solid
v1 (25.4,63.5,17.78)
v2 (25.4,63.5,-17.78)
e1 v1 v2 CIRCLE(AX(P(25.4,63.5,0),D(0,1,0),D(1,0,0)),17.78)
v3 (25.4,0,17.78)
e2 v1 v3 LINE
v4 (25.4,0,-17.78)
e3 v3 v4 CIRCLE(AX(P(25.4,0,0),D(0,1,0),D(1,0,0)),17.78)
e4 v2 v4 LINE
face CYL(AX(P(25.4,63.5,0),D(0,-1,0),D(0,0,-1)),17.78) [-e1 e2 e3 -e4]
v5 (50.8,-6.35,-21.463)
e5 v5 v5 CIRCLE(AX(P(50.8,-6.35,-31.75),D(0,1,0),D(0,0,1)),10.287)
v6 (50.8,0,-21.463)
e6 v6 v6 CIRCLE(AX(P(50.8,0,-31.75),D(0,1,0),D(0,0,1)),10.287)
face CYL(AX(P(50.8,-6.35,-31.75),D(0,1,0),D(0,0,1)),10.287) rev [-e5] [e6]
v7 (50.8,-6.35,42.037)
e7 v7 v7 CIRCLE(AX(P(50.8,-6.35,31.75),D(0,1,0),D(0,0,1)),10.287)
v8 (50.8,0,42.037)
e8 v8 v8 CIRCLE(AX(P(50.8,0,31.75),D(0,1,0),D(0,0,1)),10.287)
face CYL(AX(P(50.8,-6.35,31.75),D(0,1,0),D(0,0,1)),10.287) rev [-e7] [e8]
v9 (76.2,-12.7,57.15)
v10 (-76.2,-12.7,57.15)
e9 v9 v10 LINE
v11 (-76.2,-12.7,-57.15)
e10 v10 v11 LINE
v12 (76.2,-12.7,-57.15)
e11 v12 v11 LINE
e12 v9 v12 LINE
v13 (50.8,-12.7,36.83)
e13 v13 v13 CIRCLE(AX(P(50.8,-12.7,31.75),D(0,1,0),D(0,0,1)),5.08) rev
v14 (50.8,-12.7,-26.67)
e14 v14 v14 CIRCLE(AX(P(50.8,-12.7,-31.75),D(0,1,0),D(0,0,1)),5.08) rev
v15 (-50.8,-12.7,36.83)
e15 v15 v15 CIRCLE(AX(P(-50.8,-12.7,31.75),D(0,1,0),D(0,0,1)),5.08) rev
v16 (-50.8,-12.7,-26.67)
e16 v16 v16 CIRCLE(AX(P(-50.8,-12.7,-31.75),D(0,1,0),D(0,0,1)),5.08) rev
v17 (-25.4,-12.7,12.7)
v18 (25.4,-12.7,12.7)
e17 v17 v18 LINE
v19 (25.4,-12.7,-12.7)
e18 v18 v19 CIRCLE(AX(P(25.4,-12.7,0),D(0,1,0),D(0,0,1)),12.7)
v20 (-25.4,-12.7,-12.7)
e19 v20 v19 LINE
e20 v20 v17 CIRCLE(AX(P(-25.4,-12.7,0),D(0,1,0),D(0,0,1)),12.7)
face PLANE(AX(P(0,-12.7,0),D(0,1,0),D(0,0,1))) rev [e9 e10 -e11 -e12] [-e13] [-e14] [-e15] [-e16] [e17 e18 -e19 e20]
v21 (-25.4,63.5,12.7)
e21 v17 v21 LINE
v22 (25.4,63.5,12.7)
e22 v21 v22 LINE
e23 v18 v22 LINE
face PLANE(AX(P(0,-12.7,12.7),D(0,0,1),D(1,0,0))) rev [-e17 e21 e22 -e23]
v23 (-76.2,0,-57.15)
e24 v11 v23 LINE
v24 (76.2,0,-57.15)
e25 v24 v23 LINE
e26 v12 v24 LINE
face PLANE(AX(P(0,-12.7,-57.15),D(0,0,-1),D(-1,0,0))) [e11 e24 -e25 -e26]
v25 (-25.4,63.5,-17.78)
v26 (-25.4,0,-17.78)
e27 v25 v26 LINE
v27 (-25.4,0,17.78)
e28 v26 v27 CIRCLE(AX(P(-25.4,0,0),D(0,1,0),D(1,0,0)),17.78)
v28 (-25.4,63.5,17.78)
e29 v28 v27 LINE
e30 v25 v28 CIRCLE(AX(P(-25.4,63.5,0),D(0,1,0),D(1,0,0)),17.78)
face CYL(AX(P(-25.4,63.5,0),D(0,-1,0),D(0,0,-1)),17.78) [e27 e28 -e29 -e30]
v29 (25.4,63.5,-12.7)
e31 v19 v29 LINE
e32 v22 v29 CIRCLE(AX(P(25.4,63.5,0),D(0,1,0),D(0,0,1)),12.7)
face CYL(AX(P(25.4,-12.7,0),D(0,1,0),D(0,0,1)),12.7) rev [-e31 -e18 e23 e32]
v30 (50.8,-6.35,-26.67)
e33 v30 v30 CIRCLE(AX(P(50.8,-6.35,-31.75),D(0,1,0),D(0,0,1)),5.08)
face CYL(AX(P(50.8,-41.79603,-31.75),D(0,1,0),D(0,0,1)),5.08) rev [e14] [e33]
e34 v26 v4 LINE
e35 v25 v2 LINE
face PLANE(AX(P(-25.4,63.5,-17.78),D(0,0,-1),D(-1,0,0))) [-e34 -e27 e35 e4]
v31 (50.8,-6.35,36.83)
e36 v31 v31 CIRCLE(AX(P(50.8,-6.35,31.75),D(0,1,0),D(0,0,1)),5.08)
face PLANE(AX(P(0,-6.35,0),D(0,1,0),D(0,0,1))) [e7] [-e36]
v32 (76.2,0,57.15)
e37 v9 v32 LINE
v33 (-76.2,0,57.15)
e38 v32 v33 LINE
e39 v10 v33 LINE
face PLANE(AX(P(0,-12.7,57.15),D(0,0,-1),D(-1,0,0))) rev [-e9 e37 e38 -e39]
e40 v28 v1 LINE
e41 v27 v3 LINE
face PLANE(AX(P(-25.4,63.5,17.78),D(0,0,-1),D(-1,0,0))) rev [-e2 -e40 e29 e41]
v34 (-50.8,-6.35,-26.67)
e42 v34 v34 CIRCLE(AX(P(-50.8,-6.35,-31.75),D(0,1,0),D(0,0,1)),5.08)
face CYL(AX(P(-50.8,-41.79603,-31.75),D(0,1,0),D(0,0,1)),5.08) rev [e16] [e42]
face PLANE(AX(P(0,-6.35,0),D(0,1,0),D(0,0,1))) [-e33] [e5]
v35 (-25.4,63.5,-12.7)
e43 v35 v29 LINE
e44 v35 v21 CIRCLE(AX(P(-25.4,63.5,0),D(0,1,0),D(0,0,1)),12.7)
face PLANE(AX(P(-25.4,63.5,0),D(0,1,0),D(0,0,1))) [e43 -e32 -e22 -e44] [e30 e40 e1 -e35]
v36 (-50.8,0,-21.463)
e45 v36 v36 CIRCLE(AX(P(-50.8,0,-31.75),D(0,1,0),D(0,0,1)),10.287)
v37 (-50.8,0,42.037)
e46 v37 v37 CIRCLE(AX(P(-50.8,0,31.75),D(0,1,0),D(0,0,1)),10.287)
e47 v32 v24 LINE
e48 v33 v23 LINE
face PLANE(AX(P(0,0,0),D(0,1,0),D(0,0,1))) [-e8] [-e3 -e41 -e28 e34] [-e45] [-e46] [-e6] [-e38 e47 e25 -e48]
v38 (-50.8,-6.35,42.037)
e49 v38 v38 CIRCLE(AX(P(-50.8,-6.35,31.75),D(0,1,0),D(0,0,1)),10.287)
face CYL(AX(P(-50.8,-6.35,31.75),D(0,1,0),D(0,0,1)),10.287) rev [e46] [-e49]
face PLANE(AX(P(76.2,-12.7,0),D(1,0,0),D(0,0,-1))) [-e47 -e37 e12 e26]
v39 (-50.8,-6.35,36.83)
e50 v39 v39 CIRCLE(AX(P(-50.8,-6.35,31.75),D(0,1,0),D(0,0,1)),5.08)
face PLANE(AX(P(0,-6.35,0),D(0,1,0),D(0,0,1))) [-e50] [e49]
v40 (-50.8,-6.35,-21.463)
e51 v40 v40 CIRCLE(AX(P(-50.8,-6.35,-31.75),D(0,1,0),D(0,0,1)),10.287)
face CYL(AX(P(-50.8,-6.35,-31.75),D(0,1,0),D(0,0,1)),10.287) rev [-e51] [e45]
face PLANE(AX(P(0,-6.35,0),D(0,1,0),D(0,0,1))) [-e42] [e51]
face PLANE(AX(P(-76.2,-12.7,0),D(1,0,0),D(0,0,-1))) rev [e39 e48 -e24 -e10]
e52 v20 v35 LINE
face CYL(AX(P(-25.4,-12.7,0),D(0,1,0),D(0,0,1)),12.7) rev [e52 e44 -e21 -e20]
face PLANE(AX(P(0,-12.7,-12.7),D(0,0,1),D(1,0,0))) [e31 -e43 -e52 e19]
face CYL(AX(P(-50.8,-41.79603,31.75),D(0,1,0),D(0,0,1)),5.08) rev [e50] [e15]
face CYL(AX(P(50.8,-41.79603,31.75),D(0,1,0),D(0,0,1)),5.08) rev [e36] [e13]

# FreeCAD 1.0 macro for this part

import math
import FreeCAD as App
import Part
import Sketcher

V = App.Vector
Q = App.Units.Quantity

doc = App.newDocument("Part")
body = doc.addObject("PartDesign::Body", "Body")

# Sketch on XZ plane
sketch1 = doc.addObject("Sketcher::SketchObject", "Sketch")
body.addObject(sketch1)
sketch1.AttachmentSupport = (doc.XZ_Plane, [""])
sketch1.MapMode = "FlatFace"
sketch1.addGeometry([
    Part.LineSegment(V(-76, -57, 0), V(-76, 57, 0)),  # 0
    Part.LineSegment(V(-76, 57, 0), V(76, 57, 0)),  # 1
    Part.LineSegment(V(76, 57, 0), V(76, -57, 0)),  # 2
    Part.LineSegment(V(76, -57, 0), V(-76, -57, 0)),  # 3
    Part.Circle(V(-51, 32, 0), V(0, 0, 1), 10),  # 4
    Part.Circle(V(51, 32, 0), V(0, 0, 1), 10),  # 5
    Part.Circle(V(-51, -32, 0), V(0, 0, 1), 10),  # 6
    Part.ArcOfCircle(Part.Circle(V(25, 0, 0), V(0, 0, 1), 13), math.radians(-90), math.radians(90)),  # 7
    Part.LineSegment(V(25, 13, 0), V(-25, 13, 0)),  # 8
    Part.ArcOfCircle(Part.Circle(V(-25, 0, 0), V(0, 0, 1), 13), math.radians(90), math.radians(270)),  # 9
    Part.LineSegment(V(-25, -13, 0), V(25, -13, 0)),  # 10
    Part.Circle(V(51, -32, 0), V(0, 0, 1), 10),  # 11
], False)
sketch1.addConstraint([
    Sketcher.Constraint("Coincident", 0, 2, 1, 1),
    Sketcher.Constraint("Coincident", 1, 2, 2, 1),
    Sketcher.Constraint("Coincident", 2, 2, 3, 1),
    Sketcher.Constraint("Coincident", 3, 2, 0, 1),
    Sketcher.Constraint("Tangent", 7, 2, 8, 1),
    Sketcher.Constraint("Tangent", 8, 2, 9, 1),
    Sketcher.Constraint("Tangent", 9, 2, 10, 1),
    Sketcher.Constraint("Tangent", 10, 2, 7, 1),
    Sketcher.Constraint("Vertical", 0),
    Sketcher.Constraint("Horizontal", 1),
    Sketcher.Constraint("Vertical", 2),
    Sketcher.Constraint("Horizontal", 3),
    Sketcher.Constraint("Horizontal", 8),
    Sketcher.Constraint("Horizontal", 10),
    Sketcher.Constraint("Equal", 4, 5),
    Sketcher.Constraint("Equal", 5, 6),
    Sketcher.Constraint("Equal", 6, 11),
    Sketcher.Constraint("Symmetric", 5, 3, 6, 3, -1, 1),
    Sketcher.Constraint("Symmetric", 7, 3, 9, 3, -1, 1),
    Sketcher.Constraint("Symmetric", 4, 3, 11, 3, -1, 1),
    Sketcher.Constraint("Symmetric", 0, 2, 2, 2, -1, 1),
    Sketcher.Constraint("Symmetric", 4, 3, 5, 3, -2),
    Sketcher.Constraint("Radius", 7, Q("0.5 in")),
    Sketcher.Constraint("Diameter", 4, Q("0.81 in")),
    Sketcher.Constraint("DistanceX", 1, 1, 1, 2, Q("6 in")),
    Sketcher.Constraint("DistanceX", 8, 2, 8, 1, Q("2 in")),
    Sketcher.Constraint("DistanceY", 0, 1, 0, 2, Q("4.5 in")),
    Sketcher.Constraint("DistanceX", 4, 3, -1, 1, Q("2 in")),
    Sketcher.Constraint("DistanceY", 4, 3, 0, 2, Q("1 in")),
])
pad1 = doc.addObject("PartDesign::Pad", "Pad")
body.addObject(pad1)
pad1.Profile = sketch1
pad1.Length = Q("0.5 in")

# Sketch on XZ plane
sketch2 = doc.addObject("Sketcher::SketchObject", "Sketch001")
body.addObject(sketch2)
sketch2.AttachmentSupport = (doc.XZ_Plane, [""])
sketch2.MapMode = "FlatFace"
sketch2.addGeometry([
    Part.LineSegment(V(-25, 18, 0), V(25, 18, 0)),  # 0
    Part.ArcOfCircle(Part.Circle(V(25, 0, 0), V(0, 0, 1), 18), math.radians(-90), math.radians(90)),  # 1
    Part.LineSegment(V(25, -18, 0), V(-25, -18, 0)),  # 2
    Part.ArcOfCircle(Part.Circle(V(-25, 0, 0), V(0, 0, 1), 18), math.radians(90), math.radians(270)),  # 3
    Part.LineSegment(V(25, 13, 0), V(-25, 13, 0)),  # 4
    Part.ArcOfCircle(Part.Circle(V(-25, 0, 0), V(0, 0, 1), 13), math.radians(90), math.radians(270)),  # 5
    Part.LineSegment(V(-25, -13, 0), V(25, -13, 0)),  # 6
    Part.ArcOfCircle(Part.Circle(V(25, 0, 0), V(0, 0, 1), 13), math.radians(-90), math.radians(90)),  # 7
], False)
sketch2.addConstraint([
    Sketcher.Constraint("Tangent", 0, 2, 1, 2),
    Sketcher.Constraint("Tangent", 1, 1, 2, 1),
    Sketcher.Constraint("Tangent", 2, 2, 3, 2),
    Sketcher.Constraint("Tangent", 3, 1, 0, 1),
    Sketcher.Constraint("Tangent", 4, 2, 5, 1),
    Sketcher.Constraint("Tangent", 5, 2, 6, 1),
    Sketcher.Constraint("Tangent", 6, 2, 7, 1),
    Sketcher.Constraint("Tangent", 7, 2, 4, 1),
    Sketcher.Constraint("Horizontal", 0),
    Sketcher.Constraint("Horizontal", 2),
    Sketcher.Constraint("Horizontal", 4),
    Sketcher.Constraint("Horizontal", 6),
    Sketcher.Constraint("Coincident", 5, 3, 3, 3),
    Sketcher.Constraint("Symmetric", 1, 3, 3, 3, -1, 1),
    Sketcher.Constraint("Vertical", 7, 3, 0, 2),
    Sketcher.Constraint("Radius", 1, Q("0.7 in")),
    Sketcher.Constraint("Radius", 5, Q("0.5 in")),
    Sketcher.Constraint("DistanceX", 0, 1, 0, 2, Q("2 in")),
])
pad2 = doc.addObject("PartDesign::Pad", "Pad001")
body.addObject(pad2)
pad2.Profile = sketch2
pad2.Length = Q("2.5 in")
pad2.Reversed = True

# Sketch on XZ plane
sketch3 = doc.addObject("Sketcher::SketchObject", "Sketch002")
body.addObject(sketch3)
sketch3.AttachmentSupport = (doc.XZ_Plane, [""])
sketch3.MapMode = "FlatFace"
sketch3.addGeometry([
    Part.Circle(V(-51, -32, 0), V(0, 0, 1), 10),  # 0
    Part.Circle(V(-51, -32, 0), V(0, 0, 1), 5),  # 1
    Part.Circle(V(-51, 32, 0), V(0, 0, 1), 10),  # 2
    Part.Circle(V(-51, 32, 0), V(0, 0, 1), 5),  # 3
    Part.Circle(V(51, 32, 0), V(0, 0, 1), 10),  # 4
    Part.Circle(V(51, 32, 0), V(0, 0, 1), 5),  # 5
    Part.Circle(V(51, -32, 0), V(0, 0, 1), 10),  # 6
    Part.Circle(V(51, -32, 0), V(0, 0, 1), 5),  # 7
], False)
sketch3.addConstraint([
    Sketcher.Constraint("Coincident", 1, 3, 0, 3),
    Sketcher.Constraint("Coincident", 3, 3, 2, 3),
    Sketcher.Constraint("Coincident", 5, 3, 4, 3),
    Sketcher.Constraint("Coincident", 7, 3, 6, 3),
    Sketcher.Constraint("Equal", 0, 2),
    Sketcher.Constraint("Equal", 1, 3),
    Sketcher.Constraint("Equal", 2, 4),
    Sketcher.Constraint("Equal", 3, 5),
    Sketcher.Constraint("Equal", 4, 6),
    Sketcher.Constraint("Equal", 5, 7),
    Sketcher.Constraint("Symmetric", 0, 3, 4, 3, -1, 1),
    Sketcher.Constraint("Symmetric", 2, 3, 6, 3, -1, 1),
    Sketcher.Constraint("Symmetric", 2, 3, 4, 3, -2),
    Sketcher.Constraint("Diameter", 1, Q("0.4 in")),
    Sketcher.Constraint("Diameter", 0, Q("0.81 in")),
    Sketcher.Constraint("DistanceX", 0, 3, -1, 1, Q("2 in")),
    Sketcher.Constraint("DistanceY", 0, 3, 2, 3, Q("2.5 in")),
])
pad3 = doc.addObject("PartDesign::Pad", "Pad002")
body.addObject(pad3)
pad3.Profile = sketch3
pad3.Length = Q("0.5 in")

# Sketch on XZ plane
sketch4 = doc.addObject("Sketcher::SketchObject", "Sketch003")
body.addObject(sketch4)
sketch4.AttachmentSupport = (doc.XZ_Plane, [""])
sketch4.MapMode = "FlatFace"
sketch4.addGeometry([
    Part.Circle(V(-51, 32, 0), V(0, 0, 1), 10),  # 0
    Part.Circle(V(-51, 32, 0), V(0, 0, 1), 5),  # 1
    Part.Circle(V(-51, -32, 0), V(0, 0, 1), 10),  # 2
    Part.Circle(V(-51, -32, 0), V(0, 0, 1), 5),  # 3
    Part.Circle(V(51, -32, 0), V(0, 0, 1), 10),  # 4
    Part.Circle(V(51, -32, 0), V(0, 0, 1), 5),  # 5
    Part.Circle(V(51, 32, 0), V(0, 0, 1), 10),  # 6
    Part.Circle(V(51, 32, 0), V(0, 0, 1), 5),  # 7
], False)
sketch4.addConstraint([
    Sketcher.Constraint("Coincident", 1, 3, 0, 3),
    Sketcher.Constraint("Coincident", 3, 3, 2, 3),
    Sketcher.Constraint("Coincident", 5, 3, 4, 3),
    Sketcher.Constraint("Coincident", 7, 3, 6, 3),
    Sketcher.Constraint("Equal", 0, 2),
    Sketcher.Constraint("Equal", 1, 3),
    Sketcher.Constraint("Equal", 2, 4),
    Sketcher.Constraint("Equal", 3, 5),
    Sketcher.Constraint("Equal", 4, 6),
    Sketcher.Constraint("Equal", 5, 7),
    Sketcher.Constraint("Symmetric", 0, 3, 4, 3, -1, 1),
    Sketcher.Constraint("Symmetric", 2, 3, 6, 3, -1, 1),
    Sketcher.Constraint("Symmetric", 2, 3, 4, 3, -2),
    Sketcher.Constraint("Diameter", 1, Q("0.4 in")),
    Sketcher.Constraint("Diameter", 0, Q("0.81 in")),
    Sketcher.Constraint("DistanceX", 0, 3, -1, 1, Q("2 in")),
    Sketcher.Constraint("DistanceY", 2, 3, 0, 3, Q("2.5 in")),
])
pocket1 = doc.addObject("PartDesign::Pocket", "Pocket")
body.addObject(pocket1)
pocket1.Profile = sketch4
pocket1.Length = Q("0.25 in")
pocket1.Reversed = True

doc.recompute()
